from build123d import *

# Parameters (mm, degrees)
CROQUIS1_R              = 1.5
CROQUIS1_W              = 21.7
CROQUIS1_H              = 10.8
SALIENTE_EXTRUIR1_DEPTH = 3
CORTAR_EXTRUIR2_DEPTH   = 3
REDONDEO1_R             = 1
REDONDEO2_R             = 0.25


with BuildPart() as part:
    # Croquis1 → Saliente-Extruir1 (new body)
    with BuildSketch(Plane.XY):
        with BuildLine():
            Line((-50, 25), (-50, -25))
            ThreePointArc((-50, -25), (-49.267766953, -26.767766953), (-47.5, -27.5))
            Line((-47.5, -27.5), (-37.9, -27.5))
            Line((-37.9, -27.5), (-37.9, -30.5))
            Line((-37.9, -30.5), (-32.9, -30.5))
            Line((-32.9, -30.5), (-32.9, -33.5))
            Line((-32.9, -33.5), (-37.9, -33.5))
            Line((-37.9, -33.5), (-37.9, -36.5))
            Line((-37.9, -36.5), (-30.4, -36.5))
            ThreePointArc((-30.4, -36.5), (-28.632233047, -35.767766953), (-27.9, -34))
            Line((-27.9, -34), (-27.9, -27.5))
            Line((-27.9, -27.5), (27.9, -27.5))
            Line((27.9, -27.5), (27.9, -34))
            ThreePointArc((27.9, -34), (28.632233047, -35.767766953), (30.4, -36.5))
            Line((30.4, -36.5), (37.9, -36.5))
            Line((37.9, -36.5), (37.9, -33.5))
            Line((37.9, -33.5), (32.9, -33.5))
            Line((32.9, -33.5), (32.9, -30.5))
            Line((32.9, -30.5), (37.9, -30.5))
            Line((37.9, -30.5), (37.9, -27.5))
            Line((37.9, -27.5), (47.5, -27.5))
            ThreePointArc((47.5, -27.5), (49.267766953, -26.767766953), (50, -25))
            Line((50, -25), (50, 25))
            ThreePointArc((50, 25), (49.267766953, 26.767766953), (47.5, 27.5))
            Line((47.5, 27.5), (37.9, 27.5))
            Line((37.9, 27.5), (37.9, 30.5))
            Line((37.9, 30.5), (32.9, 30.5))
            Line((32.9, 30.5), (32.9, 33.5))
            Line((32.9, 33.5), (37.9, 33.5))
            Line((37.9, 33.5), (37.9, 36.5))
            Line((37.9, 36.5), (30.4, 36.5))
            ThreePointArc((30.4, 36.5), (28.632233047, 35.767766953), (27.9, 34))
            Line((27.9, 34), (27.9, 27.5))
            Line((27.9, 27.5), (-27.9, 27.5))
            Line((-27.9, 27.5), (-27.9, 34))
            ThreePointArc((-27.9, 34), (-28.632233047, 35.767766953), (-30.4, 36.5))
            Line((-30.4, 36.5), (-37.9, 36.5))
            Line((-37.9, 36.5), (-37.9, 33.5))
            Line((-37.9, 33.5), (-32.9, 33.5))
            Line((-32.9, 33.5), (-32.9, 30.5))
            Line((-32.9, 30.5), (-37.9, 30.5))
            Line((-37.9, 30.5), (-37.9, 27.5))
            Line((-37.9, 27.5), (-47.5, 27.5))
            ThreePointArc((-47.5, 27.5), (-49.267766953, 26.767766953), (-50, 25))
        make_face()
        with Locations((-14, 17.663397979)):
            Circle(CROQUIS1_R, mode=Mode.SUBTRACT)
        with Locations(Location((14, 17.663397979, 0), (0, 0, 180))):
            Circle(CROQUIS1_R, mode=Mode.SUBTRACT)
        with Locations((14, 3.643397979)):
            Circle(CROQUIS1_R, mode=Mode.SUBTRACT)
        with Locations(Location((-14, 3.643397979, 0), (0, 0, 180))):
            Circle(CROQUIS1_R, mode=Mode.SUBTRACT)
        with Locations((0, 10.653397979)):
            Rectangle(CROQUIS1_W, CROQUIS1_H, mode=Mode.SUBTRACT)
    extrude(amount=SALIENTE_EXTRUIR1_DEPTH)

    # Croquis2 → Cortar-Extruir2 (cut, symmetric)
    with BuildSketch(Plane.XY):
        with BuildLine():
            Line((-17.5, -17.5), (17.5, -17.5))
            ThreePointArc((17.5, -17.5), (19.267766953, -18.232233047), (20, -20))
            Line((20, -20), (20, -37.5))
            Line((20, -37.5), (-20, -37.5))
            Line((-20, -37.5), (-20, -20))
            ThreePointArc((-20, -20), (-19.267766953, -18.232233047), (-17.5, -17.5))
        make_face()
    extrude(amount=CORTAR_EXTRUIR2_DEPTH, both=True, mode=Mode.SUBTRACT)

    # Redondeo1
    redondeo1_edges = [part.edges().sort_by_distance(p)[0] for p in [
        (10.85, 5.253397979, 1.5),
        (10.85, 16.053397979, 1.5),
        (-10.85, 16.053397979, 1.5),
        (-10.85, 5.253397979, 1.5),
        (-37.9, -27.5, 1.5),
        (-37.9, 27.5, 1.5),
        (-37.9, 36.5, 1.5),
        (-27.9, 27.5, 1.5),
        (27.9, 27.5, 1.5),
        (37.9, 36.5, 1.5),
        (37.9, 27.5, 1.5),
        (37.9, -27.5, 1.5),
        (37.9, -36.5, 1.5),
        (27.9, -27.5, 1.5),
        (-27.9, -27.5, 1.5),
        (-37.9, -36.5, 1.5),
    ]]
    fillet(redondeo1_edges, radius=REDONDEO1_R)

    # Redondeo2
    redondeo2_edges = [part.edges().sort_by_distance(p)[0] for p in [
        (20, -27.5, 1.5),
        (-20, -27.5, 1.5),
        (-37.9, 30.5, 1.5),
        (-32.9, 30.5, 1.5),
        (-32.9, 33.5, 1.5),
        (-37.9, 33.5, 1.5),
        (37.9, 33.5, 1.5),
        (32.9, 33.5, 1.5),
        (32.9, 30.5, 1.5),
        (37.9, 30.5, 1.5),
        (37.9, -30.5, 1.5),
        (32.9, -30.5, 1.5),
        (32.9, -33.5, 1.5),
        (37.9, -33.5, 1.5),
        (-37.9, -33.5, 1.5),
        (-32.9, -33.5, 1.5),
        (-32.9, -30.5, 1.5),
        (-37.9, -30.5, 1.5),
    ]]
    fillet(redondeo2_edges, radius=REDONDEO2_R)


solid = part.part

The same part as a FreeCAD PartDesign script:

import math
import FreeCAD as App
import Part
import Sketcher
from FreeCAD import Vector
Q = App.Units.Quantity


def edges_at(feature, points):
    """Names of the edges that pass closest to the given points."""
    edges = feature.Shape.Edges
    near = lambda p: min(range(len(edges)), key=lambda i: edges[i].distToShape(Part.Vertex(*p))[0])
    return sorted({f"Edge{near(p) + 1}" for p in points})


def add_polygon(sketch, points):
    """Adds a closed chain of lines whose ends are joined by coincident constraints."""
    first, n = sketch.GeometryCount, len(points)
    for a, b in zip(points, points[1:] + points[:1]):
        sketch.addGeometry(Part.LineSegment(App.Vector(*a, 0), App.Vector(*b, 0)), False)
    for i in range(n):
        sketch.addConstraint(Sketcher.Constraint("Coincident", first + i, 2, first + (i + 1) % n, 1))

doc = App.newDocument("Part")
body = doc.addObject("PartDesign::Body", "Body")

# Sketch on XY plane
sketch1 = doc.addObject("Sketcher::SketchObject", "Sketch")
body.addObject(sketch1)
sketch1.AttachmentSupport = (doc.XY_Plane, [""])
sketch1.MapMode = "FlatFace"
sketch1.addGeometry(Part.LineSegment(Vector(-50, 25, 0), Vector(-50, -25, 0)), False)  # 0
sketch1.addGeometry(Part.ArcOfCircle(Part.Circle(Vector(-47.5, -25, 0), Vector(0, 0, 1), 2.5), math.radians(180), math.radians(270)), False)  # 1
sketch1.addGeometry(Part.LineSegment(Vector(-47.5, -27.5, 0), Vector(-37.9, -27.5, 0)), False)  # 2
sketch1.addGeometry(Part.LineSegment(Vector(-37.9, -27.5, 0), Vector(-37.9, -30.5, 0)), False)  # 3
sketch1.addGeometry(Part.LineSegment(Vector(-37.9, -30.5, 0), Vector(-32.9, -30.5, 0)), False)  # 4
sketch1.addGeometry(Part.LineSegment(Vector(-32.9, -30.5, 0), Vector(-32.9, -33.5, 0)), False)  # 5
sketch1.addGeometry(Part.LineSegment(Vector(-32.9, -33.5, 0), Vector(-37.9, -33.5, 0)), False)  # 6
sketch1.addGeometry(Part.LineSegment(Vector(-37.9, -33.5, 0), Vector(-37.9, -36.5, 0)), False)  # 7
sketch1.addGeometry(Part.LineSegment(Vector(-37.9, -36.5, 0), Vector(-30.4, -36.5, 0)), False)  # 8
sketch1.addGeometry(Part.ArcOfCircle(Part.Circle(Vector(-30.4, -34, 0), Vector(0, 0, 1), 2.5), math.radians(-90), math.radians(0)), False)  # 9
sketch1.addGeometry(Part.LineSegment(Vector(-27.9, -34, 0), Vector(-27.9, -27.5, 0)), False)  # 10
sketch1.addGeometry(Part.LineSegment(Vector(-27.9, -27.5, 0), Vector(27.9, -27.5, 0)), False)  # 11
sketch1.addGeometry(Part.LineSegment(Vector(27.9, -27.5, 0), Vector(27.9, -34, 0)), False)  # 12
sketch1.addGeometry(Part.ArcOfCircle(Part.Circle(Vector(30.4, -34, 0), Vector(0, 0, 1), 2.5), math.radians(180), math.radians(270)), False)  # 13
sketch1.addGeometry(Part.LineSegment(Vector(30.4, -36.5, 0), Vector(37.9, -36.5, 0)), False)  # 14
sketch1.addGeometry(Part.LineSegment(Vector(37.9, -36.5, 0), Vector(37.9, -33.5, 0)), False)  # 15
sketch1.addGeometry(Part.LineSegment(Vector(37.9, -33.5, 0), Vector(32.9, -33.5, 0)), False)  # 16
sketch1.addGeometry(Part.LineSegment(Vector(32.9, -33.5, 0), Vector(32.9, -30.5, 0)), False)  # 17
sketch1.addGeometry(Part.LineSegment(Vector(32.9, -30.5, 0), Vector(37.9, -30.5, 0)), False)  # 18
sketch1.addGeometry(Part.LineSegment(Vector(37.9, -30.5, 0), Vector(37.9, -27.5, 0)), False)  # 19
sketch1.addGeometry(Part.LineSegment(Vector(37.9, -27.5, 0), Vector(47.5, -27.5, 0)), False)  # 20
sketch1.addGeometry(Part.ArcOfCircle(Part.Circle(Vector(47.5, -25, 0), Vector(0, 0, 1), 2.5), math.radians(-90), math.radians(0)), False)  # 21
sketch1.addGeometry(Part.LineSegment(Vector(50, -25, 0), Vector(50, 25, 0)), False)  # 22
sketch1.addGeometry(Part.ArcOfCircle(Part.Circle(Vector(47.5, 25, 0), Vector(0, 0, 1), 2.5), math.radians(0), math.radians(90)), False)  # 23
sketch1.addGeometry(Part.LineSegment(Vector(47.5, 27.5, 0), Vector(37.9, 27.5, 0)), False)  # 24
sketch1.addGeometry(Part.LineSegment(Vector(37.9, 27.5, 0), Vector(37.9, 30.5, 0)), False)  # 25
sketch1.addGeometry(Part.LineSegment(Vector(37.9, 30.5, 0), Vector(32.9, 30.5, 0)), False)  # 26
sketch1.addGeometry(Part.LineSegment(Vector(32.9, 30.5, 0), Vector(32.9, 33.5, 0)), False)  # 27
sketch1.addGeometry(Part.LineSegment(Vector(32.9, 33.5, 0), Vector(37.9, 33.5, 0)), False)  # 28
sketch1.addGeometry(Part.LineSegment(Vector(37.9, 33.5, 0), Vector(37.9, 36.5, 0)), False)  # 29
sketch1.addGeometry(Part.LineSegment(Vector(37.9, 36.5, 0), Vector(30.4, 36.5, 0)), False)  # 30
sketch1.addGeometry(Part.ArcOfCircle(Part.Circle(Vector(30.4, 34, 0), Vector(0, 0, 1), 2.5), math.radians(90), math.radians(180)), False)  # 31
sketch1.addGeometry(Part.LineSegment(Vector(27.9, 34, 0), Vector(27.9, 27.5, 0)), False)  # 32
sketch1.addGeometry(Part.LineSegment(Vector(27.9, 27.5, 0), Vector(-27.9, 27.5, 0)), False)  # 33
sketch1.addGeometry(Part.LineSegment(Vector(-27.9, 27.5, 0), Vector(-27.9, 34, 0)), False)  # 34
sketch1.addGeometry(Part.ArcOfCircle(Part.Circle(Vector(-30.4, 34, 0), Vector(0, 0, 1), 2.5), math.radians(0), math.radians(90)), False)  # 35
sketch1.addGeometry(Part.LineSegment(Vector(-30.4, 36.5, 0), Vector(-37.9, 36.5, 0)), False)  # 36
sketch1.addGeometry(Part.LineSegment(Vector(-37.9, 36.5, 0), Vector(-37.9, 33.5, 0)), False)  # 37
sketch1.addGeometry(Part.LineSegment(Vector(-37.9, 33.5, 0), Vector(-32.9, 33.5, 0)), False)  # 38
sketch1.addGeometry(Part.LineSegment(Vector(-32.9, 33.5, 0), Vector(-32.9, 30.5, 0)), False)  # 39
sketch1.addGeometry(Part.LineSegment(Vector(-32.9, 30.5, 0), Vector(-37.9, 30.5, 0)), False)  # 40
sketch1.addGeometry(Part.LineSegment(Vector(-37.9, 30.5, 0), Vector(-37.9, 27.5, 0)), False)  # 41
sketch1.addGeometry(Part.LineSegment(Vector(-37.9, 27.5, 0), Vector(-47.5, 27.5, 0)), False)  # 42
sketch1.addGeometry(Part.ArcOfCircle(Part.Circle(Vector(-47.5, 25, 0), Vector(0, 0, 1), 2.5), math.radians(90), math.radians(180)), False)  # 43
sketch1.addGeometry(Part.Circle(Vector(-14, 3.6, 0), Vector(0, 0, 1), 1.5), False)  # 44
sketch1.addGeometry(Part.Circle(Vector(14, 3.6, 0), Vector(0, 0, 1), 1.5), False)  # 45
add_polygon(sketch1, [(10.8, 5.3), (-10.8, 5.3), (-10.8, 16.1), (10.8, 16.1)])  # lines 46-49
sketch1.addGeometry(Part.Circle(Vector(-14, 17.7, 0), Vector(0, 0, 1), 1.5), False)  # 50
sketch1.addGeometry(Part.Circle(Vector(14, 17.7, 0), Vector(0, 0, 1), 1.5), False)  # 51
sketch1.addConstraint([
    Sketcher.Constraint("Tangent", 0, 2, 1, 1),
    Sketcher.Constraint("Tangent", 1, 2, 2, 1),
    Sketcher.Constraint("Coincident", 2, 2, 3, 1),
    Sketcher.Constraint("Coincident", 3, 2, 4, 1),
    Sketcher.Constraint("Coincident", 4, 2, 5, 1),
    Sketcher.Constraint("Coincident", 5, 2, 6, 1),
    Sketcher.Constraint("Coincident", 6, 2, 7, 1),
    Sketcher.Constraint("Coincident", 7, 2, 8, 1),
    Sketcher.Constraint("Tangent", 8, 2, 9, 1),
    Sketcher.Constraint("Tangent", 9, 2, 10, 1),
    Sketcher.Constraint("Coincident", 10, 2, 11, 1),
    Sketcher.Constraint("Coincident", 11, 2, 12, 1),
    Sketcher.Constraint("Tangent", 12, 2, 13, 1),
    Sketcher.Constraint("Tangent", 13, 2, 14, 1),
    Sketcher.Constraint("Coincident", 14, 2, 15, 1),
    Sketcher.Constraint("Coincident", 15, 2, 16, 1),
    Sketcher.Constraint("Coincident", 16, 2, 17, 1),
    Sketcher.Constraint("Coincident", 17, 2, 18, 1),
    Sketcher.Constraint("Coincident", 18, 2, 19, 1),
    Sketcher.Constraint("Coincident", 19, 2, 20, 1),
    Sketcher.Constraint("Tangent", 20, 2, 21, 1),
    Sketcher.Constraint("Tangent", 21, 2, 22, 1),
    Sketcher.Constraint("Tangent", 22, 2, 23, 1),
    Sketcher.Constraint("Tangent", 23, 2, 24, 1),
    Sketcher.Constraint("Coincident", 24, 2, 25, 1),
    Sketcher.Constraint("Coincident", 25, 2, 26, 1),
    Sketcher.Constraint("Coincident", 26, 2, 27, 1),
    Sketcher.Constraint("Coincident", 27, 2, 28, 1),
    Sketcher.Constraint("Coincident", 28, 2, 29, 1),
    Sketcher.Constraint("Coincident", 29, 2, 30, 1),
    Sketcher.Constraint("Tangent", 30, 2, 31, 1),
    Sketcher.Constraint("Tangent", 31, 2, 32, 1),
    Sketcher.Constraint("Coincident", 32, 2, 33, 1),
    Sketcher.Constraint("Coincident", 33, 2, 34, 1),
    Sketcher.Constraint("Tangent", 34, 2, 35, 1),
    Sketcher.Constraint("Tangent", 35, 2, 36, 1),
    Sketcher.Constraint("Coincident", 36, 2, 37, 1),
    Sketcher.Constraint("Coincident", 37, 2, 38, 1),
    Sketcher.Constraint("Coincident", 38, 2, 39, 1),
    Sketcher.Constraint("Coincident", 39, 2, 40, 1),
    Sketcher.Constraint("Coincident", 40, 2, 41, 1),
    Sketcher.Constraint("Coincident", 41, 2, 42, 1),
    Sketcher.Constraint("Tangent", 42, 2, 43, 1),
    Sketcher.Constraint("Tangent", 43, 2, 0, 1),
    Sketcher.Constraint("Vertical", 0),
    Sketcher.Constraint("Horizontal", 2),
    Sketcher.Constraint("Vertical", 3),
    Sketcher.Constraint("Horizontal", 4),
    Sketcher.Constraint("Vertical", 5),
    Sketcher.Constraint("Horizontal", 6),
    Sketcher.Constraint("Vertical", 7),
    Sketcher.Constraint("Horizontal", 8),
    Sketcher.Constraint("Vertical", 10),
    Sketcher.Constraint("Horizontal", 11),
    Sketcher.Constraint("Vertical", 12),
    Sketcher.Constraint("Horizontal", 14),
    Sketcher.Constraint("Vertical", 15),
    Sketcher.Constraint("Horizontal", 16),
    Sketcher.Constraint("Vertical", 17),
    Sketcher.Constraint("Horizontal", 18),
    Sketcher.Constraint("Vertical", 19),
    Sketcher.Constraint("Horizontal", 20),
    Sketcher.Constraint("Vertical", 22),
    Sketcher.Constraint("Horizontal", 24),
    Sketcher.Constraint("Vertical", 25),
    Sketcher.Constraint("Horizontal", 26),
    Sketcher.Constraint("Vertical", 27),
    Sketcher.Constraint("Horizontal", 28),
    Sketcher.Constraint("Vertical", 29),
    Sketcher.Constraint("Horizontal", 30),
    Sketcher.Constraint("Vertical", 32),
    Sketcher.Constraint("Horizontal", 33),
    Sketcher.Constraint("Vertical", 34),
    Sketcher.Constraint("Horizontal", 36),
    Sketcher.Constraint("Vertical", 37),
    Sketcher.Constraint("Horizontal", 38),
    Sketcher.Constraint("Vertical", 39),
    Sketcher.Constraint("Horizontal", 40),
    Sketcher.Constraint("Vertical", 41),
    Sketcher.Constraint("Horizontal", 42),
    Sketcher.Constraint("Horizontal", 46),
    Sketcher.Constraint("Vertical", 47),
    Sketcher.Constraint("Horizontal", 48),
    Sketcher.Constraint("Vertical", 49),
    Sketcher.Constraint("Equal", 1, 9),
    Sketcher.Constraint("Equal", 9, 13),
    Sketcher.Constraint("Equal", 13, 21),
    Sketcher.Constraint("Equal", 21, 23),
    Sketcher.Constraint("Equal", 23, 31),
    Sketcher.Constraint("Equal", 31, 35),
    Sketcher.Constraint("Equal", 35, 43),
    Sketcher.Constraint("Equal", 44, 45),
    Sketcher.Constraint("Equal", 45, 50),
    Sketcher.Constraint("Equal", 50, 51),
    Sketcher.Constraint("Symmetric", 1, 3, 23, 3, -1, 1),
    Sketcher.Constraint("Symmetric", 9, 3, 31, 3, -1, 1),
    Sketcher.Constraint("Symmetric", 13, 3, 35, 3, -1, 1),
    Sketcher.Constraint("Symmetric", 3, 2, 25, 2, -1, 1),
    Sketcher.Constraint("Symmetric", 5, 2, 27, 2, -1, 1),
    Sketcher.Constraint("Symmetric", 15, 2, 37, 2, -1, 1),
    Sketcher.Constraint("Symmetric", 17, 2, 39, 2, -1, 1),
    Sketcher.Constraint("Symmetric", 19, 2, 41, 2, -1, 1),
    Sketcher.Constraint("Symmetric", 9, 3, 13, 3, -2),
    Sketcher.Constraint("Symmetric", 44, 3, 45, 3, -2),
    Sketcher.Constraint("Symmetric", 50, 3, 51, 3, -2),
    Sketcher.Constraint("Symmetric", 6, 2, 15, 2, -2),
    Sketcher.Constraint("Symmetric", 4, 2, 17, 2, -2),
    Sketcher.Constraint("Symmetric", 2, 2, 19, 2, -2),
    Sketcher.Constraint("Horizontal", 2, 2, 10, 2),
    Sketcher.Constraint("Horizontal", 24, 2, 32, 2),
    Sketcher.Constraint("Vertical", 44, 3, 50, 3),
    Sketcher.Constraint("Vertical", 3, 2, 6, 2),
    Sketcher.Constraint("Vertical", 25, 2, 28, 2),
    Sketcher.Constraint("Equal", 3, 5),
    Sketcher.Constraint("Equal", 5, 7),
    Sketcher.Constraint("Diameter", 44, Q("3 mm")),
    Sketcher.Constraint("Radius", 1, Q("2.5 mm")),
    Sketcher.Constraint("DistanceX", 4, 1, 4, 2, Q("5 mm")),
    Sketcher.Constraint("DistanceY", 0, 2, 0, 1, Q("50 mm")),
    Sketcher.Constraint("DistanceY", 3, 2, 3, 1, Q("3 mm")),
    Sketcher.Constraint("DistanceX", 2, 1, 2, 2, Q("9.6 mm")),
    Sketcher.Constraint("DistanceX", 8, 1, 8, 2, Q("7.5 mm")),
    Sketcher.Constraint("DistanceX", 11, 1, 11, 2, Q("55.8 mm")),
    Sketcher.Constraint("DistanceX", 46, 2, 46, 1, Q("21.7 mm")),
    Sketcher.Constraint("DistanceY", 47, 1, 47, 2, Q("10.8 mm")),
    Sketcher.Constraint("DistanceX", 44, 3, -1, 1, Q("14 mm")),
    Sketcher.Constraint("DistanceX", 46, 2, -1, 1, Q("10.85 mm")),
    Sketcher.Constraint("DistanceY", 44, 3, 50, 3, Q("14.02 mm")),
    Sketcher.Constraint("DistanceY", 44, 3, 46, 2, Q("1.61 mm")),
    Sketcher.Constraint("DistanceY", -1, 1, 44, 3, Q("3.643398 mm")),
])
pad1 = doc.addObject("PartDesign::Pad", "Pad")
body.addObject(pad1)
pad1.Profile = sketch1
pad1.Length = 3

# Sketch on XY plane
sketch2 = doc.addObject("Sketcher::SketchObject", "Sketch001")
body.addObject(sketch2)
sketch2.AttachmentSupport = (doc.XY_Plane, [""])
sketch2.MapMode = "FlatFace"
sketch2.addGeometry([
    Part.LineSegment(Vector(17.5, -17.5, 0), Vector(-17.5, -17.5, 0)),  # 0
    Part.ArcOfCircle(Part.Circle(Vector(-17.5, -20, 0), Vector(0, 0, 1), 2.5), math.radians(90), math.radians(180)),  # 1
    Part.LineSegment(Vector(-20, -20, 0), Vector(-20, -37.5, 0)),  # 2
    Part.LineSegment(Vector(-20, -37.5, 0), Vector(20, -37.5, 0)),  # 3
    Part.LineSegment(Vector(20, -37.5, 0), Vector(20, -20, 0)),  # 4
    Part.ArcOfCircle(Part.Circle(Vector(17.5, -20, 0), Vector(0, 0, 1), 2.5), math.radians(0), math.radians(90)),  # 5
], False)
sketch2.addConstraint([
    Sketcher.Constraint("Tangent", 0, 2, 1, 1),
    Sketcher.Constraint("Tangent", 1, 2, 2, 1),
    Sketcher.Constraint("Coincident", 2, 2, 3, 1),
    Sketcher.Constraint("Coincident", 3, 2, 4, 1),
    Sketcher.Constraint("Tangent", 4, 2, 5, 1),
    Sketcher.Constraint("Tangent", 5, 2, 0, 1),
    Sketcher.Constraint("Horizontal", 0),
    Sketcher.Constraint("Vertical", 2),
    Sketcher.Constraint("Horizontal", 3),
    Sketcher.Constraint("Vertical", 4),
    Sketcher.Constraint("Equal", 1, 5),
    Sketcher.Constraint("Radius", 1, Q("2.5 mm")),
    Sketcher.Constraint("DistanceX", 0, 2, 0, 1, Q("35 mm")),
    Sketcher.Constraint("DistanceY", 2, 2, 2, 1, Q("17.5 mm")),
    Sketcher.Constraint("DistanceY", 1, 3, -1, 1, Q("20 mm")),
    Sketcher.Constraint("DistanceX", 1, 2, -1, 1, Q("20 mm")),
])
pocket1 = doc.addObject("PartDesign::Pocket", "Pocket")
body.addObject(pocket1)
pocket1.Profile = sketch2
pocket1.Length = 6
pocket1.Midplane = True
doc.recompute()

fillet = doc.addObject("PartDesign::Fillet", "Fillet")
body.addObject(fillet)
fillet.Base = (pocket1, edges_at(pocket1, [
    (10.85, 5.253, 1.5),
    (10.85, 16.053, 1.5),
    (-10.85, 16.053, 1.5),
    (-10.85, 5.253, 1.5),
    (-37.9, -27.5, 1.5),
    (-37.9, 27.5, 1.5),
    (-37.9, 36.5, 1.5),
    (-27.9, 27.5, 1.5),
    (27.9, 27.5, 1.5),
    (37.9, 36.5, 1.5),
    (37.9, 27.5, 1.5),
    (37.9, -27.5, 1.5),
    (37.9, -36.5, 1.5),
    (27.9, -27.5, 1.5),
    (-27.9, -27.5, 1.5),
    (-37.9, -36.5, 1.5),
]))
fillet.Radius = 1
doc.recompute()

fillet2 = doc.addObject("PartDesign::Fillet", "Fillet001")
body.addObject(fillet2)
fillet2.Base = (fillet, edges_at(fillet, [
    (20, -27.5, 1.5),
    (-20, -27.5, 1.5),
    (-37.9, 30.5, 1.5),
    (-32.9, 30.5, 1.5),
    (-32.9, 33.5, 1.5),
    (-37.9, 33.5, 1.5),
    (37.9, 33.5, 1.5),
    (32.9, 33.5, 1.5),
    (32.9, 30.5, 1.5),
    (37.9, 30.5, 1.5),
    (37.9, -30.5, 1.5),
    (32.9, -30.5, 1.5),
    (32.9, -33.5, 1.5),
    (37.9, -33.5, 1.5),
    (-37.9, -33.5, 1.5),
    (-32.9, -33.5, 1.5),
    (-32.9, -30.5, 1.5),
    (-37.9, -30.5, 1.5),
]))
fillet2.Radius = 0.25

doc.recompute()
